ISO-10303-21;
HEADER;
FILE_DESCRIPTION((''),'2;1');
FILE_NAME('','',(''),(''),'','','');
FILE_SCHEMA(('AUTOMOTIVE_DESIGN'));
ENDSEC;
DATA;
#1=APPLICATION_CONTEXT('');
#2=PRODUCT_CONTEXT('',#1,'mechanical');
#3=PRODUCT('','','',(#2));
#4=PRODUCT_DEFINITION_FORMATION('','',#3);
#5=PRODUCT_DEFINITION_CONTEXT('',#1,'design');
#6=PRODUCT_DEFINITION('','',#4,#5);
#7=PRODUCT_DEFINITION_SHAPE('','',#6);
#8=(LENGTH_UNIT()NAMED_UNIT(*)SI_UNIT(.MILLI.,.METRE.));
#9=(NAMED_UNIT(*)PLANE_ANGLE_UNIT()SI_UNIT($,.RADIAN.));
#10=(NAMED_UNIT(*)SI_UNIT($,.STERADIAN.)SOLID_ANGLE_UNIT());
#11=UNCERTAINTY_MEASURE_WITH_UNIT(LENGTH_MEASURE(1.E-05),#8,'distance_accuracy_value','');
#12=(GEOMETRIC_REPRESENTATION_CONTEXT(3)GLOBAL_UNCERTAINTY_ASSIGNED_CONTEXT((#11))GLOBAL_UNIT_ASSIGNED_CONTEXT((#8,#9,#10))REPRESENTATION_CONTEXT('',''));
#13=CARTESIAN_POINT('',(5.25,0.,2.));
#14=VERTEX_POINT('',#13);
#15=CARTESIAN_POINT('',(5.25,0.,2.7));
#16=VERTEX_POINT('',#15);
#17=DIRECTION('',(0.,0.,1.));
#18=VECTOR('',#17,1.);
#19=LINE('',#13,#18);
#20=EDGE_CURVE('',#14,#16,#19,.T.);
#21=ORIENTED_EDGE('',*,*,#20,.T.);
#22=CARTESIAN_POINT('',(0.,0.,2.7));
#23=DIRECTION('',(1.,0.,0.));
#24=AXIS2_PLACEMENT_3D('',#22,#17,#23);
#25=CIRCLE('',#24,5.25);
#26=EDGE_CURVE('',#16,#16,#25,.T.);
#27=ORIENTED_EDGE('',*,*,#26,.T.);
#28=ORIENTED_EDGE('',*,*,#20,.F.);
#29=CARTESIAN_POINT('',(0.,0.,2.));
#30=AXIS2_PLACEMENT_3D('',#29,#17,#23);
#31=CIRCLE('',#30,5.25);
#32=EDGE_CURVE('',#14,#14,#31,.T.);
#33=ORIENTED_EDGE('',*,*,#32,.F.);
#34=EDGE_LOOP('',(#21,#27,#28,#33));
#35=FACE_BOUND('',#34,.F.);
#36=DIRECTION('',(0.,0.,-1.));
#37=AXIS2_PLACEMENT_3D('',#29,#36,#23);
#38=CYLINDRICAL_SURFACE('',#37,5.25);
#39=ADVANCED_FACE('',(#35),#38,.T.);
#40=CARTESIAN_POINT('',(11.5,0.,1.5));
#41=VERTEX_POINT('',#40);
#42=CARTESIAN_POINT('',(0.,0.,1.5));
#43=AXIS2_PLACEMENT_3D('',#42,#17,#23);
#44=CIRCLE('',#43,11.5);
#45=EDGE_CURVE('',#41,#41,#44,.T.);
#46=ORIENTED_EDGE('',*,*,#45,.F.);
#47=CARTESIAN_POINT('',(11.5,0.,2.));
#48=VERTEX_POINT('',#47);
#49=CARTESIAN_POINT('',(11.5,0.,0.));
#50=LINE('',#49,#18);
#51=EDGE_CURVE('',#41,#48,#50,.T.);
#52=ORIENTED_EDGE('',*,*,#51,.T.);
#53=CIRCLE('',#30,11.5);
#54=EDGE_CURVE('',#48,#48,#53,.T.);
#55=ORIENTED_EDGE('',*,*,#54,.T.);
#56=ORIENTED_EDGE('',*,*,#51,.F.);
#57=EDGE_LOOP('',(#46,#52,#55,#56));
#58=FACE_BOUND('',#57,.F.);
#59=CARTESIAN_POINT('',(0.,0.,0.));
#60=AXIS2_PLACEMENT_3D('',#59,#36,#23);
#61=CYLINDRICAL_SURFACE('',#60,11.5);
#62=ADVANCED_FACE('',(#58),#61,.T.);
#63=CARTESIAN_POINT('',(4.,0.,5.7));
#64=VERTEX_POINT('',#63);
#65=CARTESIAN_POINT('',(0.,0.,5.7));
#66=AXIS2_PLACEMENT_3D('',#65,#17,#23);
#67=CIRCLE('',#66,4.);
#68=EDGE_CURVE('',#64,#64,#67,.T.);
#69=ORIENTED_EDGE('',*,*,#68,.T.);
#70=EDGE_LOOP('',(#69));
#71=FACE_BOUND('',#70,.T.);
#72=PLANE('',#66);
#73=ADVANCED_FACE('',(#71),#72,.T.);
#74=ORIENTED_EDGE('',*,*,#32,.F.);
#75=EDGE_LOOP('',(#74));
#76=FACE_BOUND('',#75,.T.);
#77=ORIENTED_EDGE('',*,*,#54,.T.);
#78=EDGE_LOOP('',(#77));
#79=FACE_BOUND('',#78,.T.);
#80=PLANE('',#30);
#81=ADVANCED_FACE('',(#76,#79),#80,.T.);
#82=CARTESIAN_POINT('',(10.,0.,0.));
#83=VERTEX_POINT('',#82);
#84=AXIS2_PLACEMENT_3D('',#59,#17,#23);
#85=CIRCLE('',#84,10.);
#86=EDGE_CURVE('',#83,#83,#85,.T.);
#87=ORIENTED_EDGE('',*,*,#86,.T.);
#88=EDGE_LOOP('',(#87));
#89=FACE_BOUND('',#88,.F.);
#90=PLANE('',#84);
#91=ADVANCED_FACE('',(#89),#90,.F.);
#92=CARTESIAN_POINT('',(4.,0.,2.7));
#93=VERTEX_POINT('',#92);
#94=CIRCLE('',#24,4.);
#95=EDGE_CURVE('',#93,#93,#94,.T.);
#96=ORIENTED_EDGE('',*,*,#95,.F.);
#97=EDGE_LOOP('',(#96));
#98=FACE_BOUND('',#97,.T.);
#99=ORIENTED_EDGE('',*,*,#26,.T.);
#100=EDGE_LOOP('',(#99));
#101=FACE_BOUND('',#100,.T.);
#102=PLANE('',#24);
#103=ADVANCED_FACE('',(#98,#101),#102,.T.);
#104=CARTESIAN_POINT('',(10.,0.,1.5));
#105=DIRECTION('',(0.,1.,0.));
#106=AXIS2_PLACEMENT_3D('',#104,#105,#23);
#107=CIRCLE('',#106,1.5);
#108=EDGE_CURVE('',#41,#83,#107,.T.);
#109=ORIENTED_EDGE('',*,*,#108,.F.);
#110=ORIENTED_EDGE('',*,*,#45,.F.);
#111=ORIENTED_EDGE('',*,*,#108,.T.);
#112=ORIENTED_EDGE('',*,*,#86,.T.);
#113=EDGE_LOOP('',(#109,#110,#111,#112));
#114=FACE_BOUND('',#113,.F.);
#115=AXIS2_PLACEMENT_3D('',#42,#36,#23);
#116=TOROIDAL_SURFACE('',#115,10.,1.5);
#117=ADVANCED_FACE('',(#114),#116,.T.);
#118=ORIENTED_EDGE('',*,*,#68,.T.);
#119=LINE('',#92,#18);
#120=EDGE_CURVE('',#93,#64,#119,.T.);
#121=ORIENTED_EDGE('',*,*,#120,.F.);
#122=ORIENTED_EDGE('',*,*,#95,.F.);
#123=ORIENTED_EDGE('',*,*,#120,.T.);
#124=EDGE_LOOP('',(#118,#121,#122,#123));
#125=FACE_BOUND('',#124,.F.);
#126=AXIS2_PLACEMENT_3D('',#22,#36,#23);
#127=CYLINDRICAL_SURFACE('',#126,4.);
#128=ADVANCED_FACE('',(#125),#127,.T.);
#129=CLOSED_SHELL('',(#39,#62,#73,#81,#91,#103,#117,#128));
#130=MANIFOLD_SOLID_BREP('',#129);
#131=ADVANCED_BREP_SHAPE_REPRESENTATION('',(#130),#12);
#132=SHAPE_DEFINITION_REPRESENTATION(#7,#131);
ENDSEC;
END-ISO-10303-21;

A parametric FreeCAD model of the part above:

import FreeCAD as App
import Part
import Sketcher


def edges_at(feature, points):
    """Names of the edges that pass closest to the given points."""
    edges = feature.Shape.Edges
    near = lambda p: min(range(len(edges)), key=lambda i: edges[i].distToShape(Part.Vertex(*p))[0])
    return sorted({f"Edge{near(p) + 1}" for p in points})

doc = App.newDocument("Part")
body = doc.addObject("PartDesign::Body", "Body")

# Sketch on XY plane
sketch1 = body.newObject("Sketcher::SketchObject", "Sketch")
sketch1.AttachmentSupport = (doc.getObject("XY_Plane"), [""])
sketch1.MapMode = "FlatFace"
sketch1.addGeometry(Part.Circle(App.Vector(0, 0, 0), App.Vector(0, 0, 1), 12), False)
sketch1.addConstraint(Sketcher.Constraint("Coincident", 0, 3, -1, 1))
sketch1.addConstraint(Sketcher.Constraint("Diameter", 0, 23.0))
pad1 = body.newObject("PartDesign::Pad", "Pad")
pad1.Profile = sketch1
pad1.Length = 2

# Sketch on XY plane
sketch2 = body.newObject("Sketcher::SketchObject", "Sketch001")
sketch2.AttachmentSupport = (doc.getObject("XY_Plane"), [""])
sketch2.MapMode = "FlatFace"
sketch2.AttachmentOffset = App.Placement(App.Vector(0, 0, 2), App.Rotation())
sketch2.addGeometry(Part.Circle(App.Vector(0, 0, 0), App.Vector(0, 0, 1), 5), False)
sketch2.addConstraint(Sketcher.Constraint("Coincident", 0, 3, -1, 1))
sketch2.addConstraint(Sketcher.Constraint("Diameter", 0, 10.5))
pad2 = body.newObject("PartDesign::Pad", "Pad001")
pad2.Profile = sketch2
pad2.Length = 0.7

# Sketch on XY plane
sketch3 = body.newObject("Sketcher::SketchObject", "Sketch002")
sketch3.AttachmentSupport = (doc.getObject("XY_Plane"), [""])
sketch3.MapMode = "FlatFace"
sketch3.AttachmentOffset = App.Placement(App.Vector(0, 0, 2.7), App.Rotation())
sketch3.addGeometry(Part.Circle(App.Vector(0, 0, 0), App.Vector(0, 0, 1), 4), False)
sketch3.addConstraint(Sketcher.Constraint("Coincident", 0, 3, -1, 1))
sketch3.addConstraint(Sketcher.Constraint("Diameter", 0, 8.0))
pad3 = body.newObject("PartDesign::Pad", "Pad002")
pad3.Profile = sketch3
pad3.Length = 3
doc.recompute()

fillet = body.newObject("PartDesign::Fillet", "Fillet")
fillet.Base = (pad3, edges_at(pad3, [(-11.5, 0, 0)]))
fillet.Radius = 1.5

doc.recompute()
